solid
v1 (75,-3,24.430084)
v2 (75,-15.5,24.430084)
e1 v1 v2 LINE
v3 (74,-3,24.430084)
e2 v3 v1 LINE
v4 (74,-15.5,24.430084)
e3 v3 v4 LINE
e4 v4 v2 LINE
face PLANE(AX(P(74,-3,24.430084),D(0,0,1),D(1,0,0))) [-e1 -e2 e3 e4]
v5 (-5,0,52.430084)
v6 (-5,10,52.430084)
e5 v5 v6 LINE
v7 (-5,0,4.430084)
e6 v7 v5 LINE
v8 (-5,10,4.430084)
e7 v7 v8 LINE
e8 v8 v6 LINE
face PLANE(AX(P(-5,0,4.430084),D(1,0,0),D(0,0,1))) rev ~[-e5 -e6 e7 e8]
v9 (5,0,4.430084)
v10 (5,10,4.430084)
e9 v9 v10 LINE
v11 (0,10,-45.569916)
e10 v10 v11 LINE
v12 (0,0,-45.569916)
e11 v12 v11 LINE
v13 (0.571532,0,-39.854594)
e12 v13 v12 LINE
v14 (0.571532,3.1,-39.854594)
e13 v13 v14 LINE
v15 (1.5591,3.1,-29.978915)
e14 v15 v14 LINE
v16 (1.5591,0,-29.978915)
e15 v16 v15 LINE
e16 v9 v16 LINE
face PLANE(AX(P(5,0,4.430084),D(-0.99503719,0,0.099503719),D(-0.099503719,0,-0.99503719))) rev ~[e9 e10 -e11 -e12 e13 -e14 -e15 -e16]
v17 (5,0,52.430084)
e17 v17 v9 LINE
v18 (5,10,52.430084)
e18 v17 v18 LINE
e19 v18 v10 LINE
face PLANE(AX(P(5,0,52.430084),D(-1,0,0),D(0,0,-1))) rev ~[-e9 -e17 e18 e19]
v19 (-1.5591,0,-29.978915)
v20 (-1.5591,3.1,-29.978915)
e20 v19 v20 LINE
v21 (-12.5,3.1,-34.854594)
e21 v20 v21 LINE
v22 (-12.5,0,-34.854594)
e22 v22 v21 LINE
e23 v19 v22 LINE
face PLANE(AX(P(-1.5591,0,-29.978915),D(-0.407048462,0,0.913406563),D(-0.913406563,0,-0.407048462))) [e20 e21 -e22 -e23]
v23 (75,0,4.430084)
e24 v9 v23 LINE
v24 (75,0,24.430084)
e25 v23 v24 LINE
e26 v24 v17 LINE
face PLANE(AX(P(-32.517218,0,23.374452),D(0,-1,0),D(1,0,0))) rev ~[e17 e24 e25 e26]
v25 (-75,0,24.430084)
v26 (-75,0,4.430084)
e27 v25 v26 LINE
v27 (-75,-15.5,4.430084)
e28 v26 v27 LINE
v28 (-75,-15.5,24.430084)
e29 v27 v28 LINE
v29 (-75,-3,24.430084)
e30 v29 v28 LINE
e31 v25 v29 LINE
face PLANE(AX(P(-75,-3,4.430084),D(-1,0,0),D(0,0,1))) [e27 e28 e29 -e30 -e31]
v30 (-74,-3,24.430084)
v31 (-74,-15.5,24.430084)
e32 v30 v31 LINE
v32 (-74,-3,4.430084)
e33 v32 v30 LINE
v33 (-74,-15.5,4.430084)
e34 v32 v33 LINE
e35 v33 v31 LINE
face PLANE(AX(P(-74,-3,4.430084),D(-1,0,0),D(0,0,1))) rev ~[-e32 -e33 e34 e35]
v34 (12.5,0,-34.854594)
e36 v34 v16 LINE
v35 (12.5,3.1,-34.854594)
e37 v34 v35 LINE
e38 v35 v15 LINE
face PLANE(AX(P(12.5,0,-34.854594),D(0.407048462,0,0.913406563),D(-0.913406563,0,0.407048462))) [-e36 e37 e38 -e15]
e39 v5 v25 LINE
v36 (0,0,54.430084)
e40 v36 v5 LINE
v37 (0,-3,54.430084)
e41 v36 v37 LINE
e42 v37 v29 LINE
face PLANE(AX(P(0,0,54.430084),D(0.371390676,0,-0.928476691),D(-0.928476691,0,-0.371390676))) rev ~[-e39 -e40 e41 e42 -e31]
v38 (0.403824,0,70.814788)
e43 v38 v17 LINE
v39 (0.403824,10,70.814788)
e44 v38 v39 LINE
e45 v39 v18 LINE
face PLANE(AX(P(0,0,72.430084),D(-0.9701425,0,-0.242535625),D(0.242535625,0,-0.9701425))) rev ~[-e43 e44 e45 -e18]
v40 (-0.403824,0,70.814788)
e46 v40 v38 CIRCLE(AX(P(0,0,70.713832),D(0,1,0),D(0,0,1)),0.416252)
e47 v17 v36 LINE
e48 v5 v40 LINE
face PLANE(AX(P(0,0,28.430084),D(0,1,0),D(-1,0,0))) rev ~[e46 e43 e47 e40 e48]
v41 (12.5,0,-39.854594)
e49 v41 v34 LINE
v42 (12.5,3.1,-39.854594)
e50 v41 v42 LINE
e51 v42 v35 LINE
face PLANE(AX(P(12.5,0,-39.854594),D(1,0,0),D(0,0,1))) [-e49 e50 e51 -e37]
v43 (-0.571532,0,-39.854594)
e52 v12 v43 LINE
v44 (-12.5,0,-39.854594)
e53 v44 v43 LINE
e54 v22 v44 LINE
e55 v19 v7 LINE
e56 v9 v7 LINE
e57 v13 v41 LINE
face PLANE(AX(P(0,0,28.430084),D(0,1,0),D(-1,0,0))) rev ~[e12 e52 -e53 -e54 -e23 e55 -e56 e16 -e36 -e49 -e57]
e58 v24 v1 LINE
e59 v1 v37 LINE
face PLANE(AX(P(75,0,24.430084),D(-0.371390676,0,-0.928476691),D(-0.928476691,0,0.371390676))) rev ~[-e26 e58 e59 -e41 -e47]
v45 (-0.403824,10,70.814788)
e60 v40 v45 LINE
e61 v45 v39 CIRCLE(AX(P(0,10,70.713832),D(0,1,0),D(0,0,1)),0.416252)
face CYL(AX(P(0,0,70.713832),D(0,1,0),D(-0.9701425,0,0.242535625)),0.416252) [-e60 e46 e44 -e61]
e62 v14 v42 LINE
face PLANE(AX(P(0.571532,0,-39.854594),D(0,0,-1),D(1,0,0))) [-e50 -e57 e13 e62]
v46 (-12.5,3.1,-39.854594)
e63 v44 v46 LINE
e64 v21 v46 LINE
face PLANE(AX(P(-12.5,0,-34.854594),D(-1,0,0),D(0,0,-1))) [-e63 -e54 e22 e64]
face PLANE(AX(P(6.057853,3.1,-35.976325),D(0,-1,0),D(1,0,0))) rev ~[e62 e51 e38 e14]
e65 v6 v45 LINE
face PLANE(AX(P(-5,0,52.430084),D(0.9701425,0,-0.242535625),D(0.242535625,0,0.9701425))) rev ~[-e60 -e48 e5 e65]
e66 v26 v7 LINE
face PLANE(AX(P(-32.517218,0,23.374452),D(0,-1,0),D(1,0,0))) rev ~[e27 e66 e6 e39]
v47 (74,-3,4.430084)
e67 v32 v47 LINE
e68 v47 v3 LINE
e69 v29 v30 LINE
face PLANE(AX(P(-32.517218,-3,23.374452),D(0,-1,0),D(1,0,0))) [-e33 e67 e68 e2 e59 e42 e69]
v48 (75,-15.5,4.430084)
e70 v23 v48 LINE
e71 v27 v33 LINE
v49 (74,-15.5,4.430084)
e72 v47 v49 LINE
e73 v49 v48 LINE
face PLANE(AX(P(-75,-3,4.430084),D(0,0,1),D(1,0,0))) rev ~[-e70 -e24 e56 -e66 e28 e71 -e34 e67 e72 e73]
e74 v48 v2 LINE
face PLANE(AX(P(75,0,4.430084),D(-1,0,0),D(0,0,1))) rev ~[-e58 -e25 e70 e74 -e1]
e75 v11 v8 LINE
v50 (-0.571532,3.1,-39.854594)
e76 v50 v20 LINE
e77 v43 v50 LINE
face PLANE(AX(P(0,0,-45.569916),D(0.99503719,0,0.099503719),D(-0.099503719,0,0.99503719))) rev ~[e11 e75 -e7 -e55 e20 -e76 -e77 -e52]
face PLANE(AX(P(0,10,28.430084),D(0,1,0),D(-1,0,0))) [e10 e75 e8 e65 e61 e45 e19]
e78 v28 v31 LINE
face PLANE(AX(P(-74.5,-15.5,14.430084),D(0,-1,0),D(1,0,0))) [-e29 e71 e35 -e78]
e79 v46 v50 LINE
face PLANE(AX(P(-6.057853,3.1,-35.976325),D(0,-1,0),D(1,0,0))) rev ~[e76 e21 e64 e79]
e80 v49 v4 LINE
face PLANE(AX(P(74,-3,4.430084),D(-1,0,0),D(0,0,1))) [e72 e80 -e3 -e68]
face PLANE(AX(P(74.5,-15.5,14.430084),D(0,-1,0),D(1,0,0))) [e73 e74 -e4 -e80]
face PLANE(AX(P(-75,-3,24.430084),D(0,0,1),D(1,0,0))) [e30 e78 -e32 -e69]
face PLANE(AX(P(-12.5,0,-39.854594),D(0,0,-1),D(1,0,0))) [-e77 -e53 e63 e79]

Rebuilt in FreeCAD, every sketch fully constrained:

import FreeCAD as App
import Part
import Sketcher

V = App.Vector


def edges_at(feature, points):
    """Names of the edges that pass closest to the given points."""
    edges = feature.Shape.Edges
    near = lambda p: min(range(len(edges)), key=lambda i: edges[i].distToShape(Part.Vertex(*p))[0])
    return sorted({f"Edge{near(p) + 1}" for p in points})


def add_polygon(sketch, points):
    """Adds a closed chain of lines whose ends are joined by coincident constraints."""
    first, n = sketch.GeometryCount, len(points)
    for a, b in zip(points, points[1:] + points[:1]):
        sketch.addGeometry(Part.LineSegment(App.Vector(*a, 0), App.Vector(*b, 0)), False)
    for i in range(n):
        sketch.addConstraint(Sketcher.Constraint("Coincident", first + i, 2, first + (i + 1) % n, 1))

doc = App.newDocument("Part")
body = doc.addObject("PartDesign::Body", "Body")

sketch1 = doc.addObject("Sketcher::SketchObject", "Sketch")
body.addObject(sketch1)
sketch1.AttachmentSupport = (doc.XZ_Plane, [""])
sketch1.MapMode = "FlatFace"
add_polygon(sketch1, [(0, 54.430084), (-75, 24.430084), (-75, 4.430084), (75, 4.430084), (75, 24.430084)])
sketch1.addConstraint(Sketcher.Constraint("Vertical", 1))
sketch1.addConstraint(Sketcher.Constraint("Horizontal", 2))
sketch1.addConstraint(Sketcher.Constraint("Vertical", 3))
sketch1.addConstraint(Sketcher.Constraint("Symmetric", 0, 2, 3, 2, -2))
sketch1.addConstraint(Sketcher.Constraint("PointOnObject", 4, 2, -2))
sketch1.addConstraint(Sketcher.Constraint("DistanceX", 2, 1, 2, 2, 150.0))
sketch1.addConstraint(Sketcher.Constraint("DistanceY", 1, 2, 1, 1, 20.0))
sketch1.addConstraint(Sketcher.Constraint("DistanceY", 0, 2, 4, 2, 30.0))
sketch1.addConstraint(Sketcher.Constraint("DistanceY", -1, 1, 0, 2, 24.430084))
pad1 = doc.addObject("PartDesign::Pad", "Pad")
body.addObject(pad1)
pad1.Profile = sketch1
pad1.Length = 3

sketch2 = doc.addObject("Sketcher::SketchObject", "Sketch001")
body.addObject(sketch2)
sketch2.AttachmentSupport = (doc.XZ_Plane, [""])
sketch2.MapMode = "FlatFace"
sketch2.AttachmentOffset = App.Placement(V(0, 0, 3), App.Rotation())
add_polygon(sketch2, [(-75, 24.430084), (-75, 4.430084), (-74, 4.430084), (-74, 24.430084)])
add_polygon(sketch2, [(74, 24.430084), (74, 4.430084), (75, 4.430084), (75, 24.430084)])
sketch2.addConstraint(Sketcher.Constraint("Vertical", 0))
sketch2.addConstraint(Sketcher.Constraint("Horizontal", 1))
sketch2.addConstraint(Sketcher.Constraint("Vertical", 2))
sketch2.addConstraint(Sketcher.Constraint("Horizontal", 3))
sketch2.addConstraint(Sketcher.Constraint("Vertical", 4))
sketch2.addConstraint(Sketcher.Constraint("Horizontal", 5))
sketch2.addConstraint(Sketcher.Constraint("Vertical", 6))
sketch2.addConstraint(Sketcher.Constraint("Horizontal", 7))
sketch2.addConstraint(Sketcher.Constraint("Symmetric", 1, 2, 4, 2, -2))
sketch2.addConstraint(Sketcher.Constraint("Symmetric", 3, 2, 6, 2, -2))
sketch2.addConstraint(Sketcher.Constraint("DistanceX", 1, 1, 1, 2, 1.0))
sketch2.addConstraint(Sketcher.Constraint("DistanceY", 0, 2, 0, 1, 20.0))
sketch2.addConstraint(Sketcher.Constraint("DistanceX", 0, 2, -1, 1, 75.0))
sketch2.addConstraint(Sketcher.Constraint("DistanceY", -1, 1, 0, 2, 4.430084))
pad2 = doc.addObject("PartDesign::Pad", "Pad001")
body.addObject(pad2)
pad2.Profile = sketch2
pad2.Length = 12.5

sketch3 = doc.addObject("Sketcher::SketchObject", "Sketch002")
body.addObject(sketch3)
sketch3.AttachmentSupport = (doc.XZ_Plane, [""])
sketch3.MapMode = "FlatFace"
add_polygon(sketch3, [(5, 4.430084), (-5, 4.430084), (-5, 52.430084), (5, 52.430084)])
sketch3.addConstraint(Sketcher.Constraint("Horizontal", 0))
sketch3.addConstraint(Sketcher.Constraint("Vertical", 1))
sketch3.addConstraint(Sketcher.Constraint("Horizontal", 2))
sketch3.addConstraint(Sketcher.Constraint("Vertical", 3))
sketch3.addConstraint(Sketcher.Constraint("DistanceX", 0, 2, 0, 1, 10.0))
sketch3.addConstraint(Sketcher.Constraint("DistanceY", 1, 1, 1, 2, 48.0))
sketch3.addConstraint(Sketcher.Constraint("DistanceX", 0, 2, -1, 1, 5.0))
sketch3.addConstraint(Sketcher.Constraint("DistanceY", -1, 1, 0, 2, 4.430084))
pad3 = doc.addObject("PartDesign::Pad", "Pad002")
body.addObject(pad3)
pad3.Profile = sketch3
pad3.Length = 10
pad3.Reversed = True

sketch4 = doc.addObject("Sketcher::SketchObject", "Sketch003")
body.addObject(sketch4)
sketch4.AttachmentSupport = (doc.XZ_Plane, [""])
sketch4.MapMode = "FlatFace"
add_polygon(sketch4, [(-5, 4.430084), (-5, 52.430084), (0, 72.430084), (5, 52.430084), (5, 4.430084), (0, -45.569916)])
sketch4.addConstraint(Sketcher.Constraint("Vertical", 0))
sketch4.addConstraint(Sketcher.Constraint("Vertical", 3))
sketch4.addConstraint(Sketcher.Constraint("Symmetric", 0, 2, 2, 2, -2))
sketch4.addConstraint(Sketcher.Constraint("PointOnObject", 1, 2, -2))
sketch4.addConstraint(Sketcher.Constraint("PointOnObject", 4, 2, -2))
sketch4.addConstraint(Sketcher.Constraint("Horizontal", 3, 2, 5, 2))
sketch4.addConstraint(Sketcher.Constraint("DistanceY", 0, 1, 0, 2, 48.0))
sketch4.addConstraint(Sketcher.Constraint("DistanceX", 0, 2, -1, 1, 5.0))
sketch4.addConstraint(Sketcher.Constraint("DistanceY", 0, 2, 1, 2, 20.0))
sketch4.addConstraint(Sketcher.Constraint("DistanceY", 4, 2, 3, 2, 50.0))
sketch4.addConstraint(Sketcher.Constraint("DistanceY", -1, 1, 0, 2, 52.430084))
pad4 = doc.addObject("PartDesign::Pad", "Pad003")
body.addObject(pad4)
pad4.Profile = sketch4
pad4.Length = 10
pad4.Reversed = True

sketch5 = doc.addObject("Sketcher::SketchObject", "Sketch004")
body.addObject(sketch5)
sketch5.AttachmentSupport = (doc.XZ_Plane, [""])
sketch5.MapMode = "FlatFace"
add_polygon(sketch5, [(-12.5, -39.854594), (-0.571532, -39.854594), (-1.5591, -29.978915), (-12.5, -34.854594)])
add_polygon(sketch5, [(1.5591, -29.978915), (0.571532, -39.854594), (12.5, -39.854594), (12.5, -34.854594)])
sketch5.addConstraint(Sketcher.Constraint("Horizontal", 0))
sketch5.addConstraint(Sketcher.Constraint("Vertical", 3))
sketch5.addConstraint(Sketcher.Constraint("Horizontal", 5))
sketch5.addConstraint(Sketcher.Constraint("Vertical", 6))
sketch5.addConstraint(Sketcher.Constraint("Symmetric", 0, 2, 4, 2, -2))
sketch5.addConstraint(Sketcher.Constraint("Symmetric", 2, 2, 6, 2, -2))
sketch5.addConstraint(Sketcher.Constraint("Symmetric", 1, 2, 7, 2, -2))
sketch5.addConstraint(Sketcher.Constraint("DistanceY", 3, 2, 3, 1, 5.0))
sketch5.addConstraint(Sketcher.Constraint("DistanceX", 3, 2, 5, 2, 25.0))
sketch5.addConstraint(Sketcher.Constraint("DistanceX", 1, 2, -1, 1, 1.5591))
sketch5.addConstraint(Sketcher.Constraint("DistanceX", 0, 1, 0, 2, 11.928468))
sketch5.addConstraint(Sketcher.Constraint("DistanceY", 0, 2, 1, 2, 9.875678))
sketch5.addConstraint(Sketcher.Constraint("DistanceY", 0, 2, -1, 1, 39.854594))
pad5 = doc.addObject("PartDesign::Pad", "Pad004")
body.addObject(pad5)
pad5.Profile = sketch5
pad5.Length = 3.1
pad5.Reversed = True
doc.recompute()

fillet = doc.addObject("PartDesign::Fillet", "Fillet")
body.addObject(fillet)
fillet.Base = (pad5, edges_at(pad5, [(0, 5, 72.43)]))
fillet.Radius = 0.416252

doc.recompute()
